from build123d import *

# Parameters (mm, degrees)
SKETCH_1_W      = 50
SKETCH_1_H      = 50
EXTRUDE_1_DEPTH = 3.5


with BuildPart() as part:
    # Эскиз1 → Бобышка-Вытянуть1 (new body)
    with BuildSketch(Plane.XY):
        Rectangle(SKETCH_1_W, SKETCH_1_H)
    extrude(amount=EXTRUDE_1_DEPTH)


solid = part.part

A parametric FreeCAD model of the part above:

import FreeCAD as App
import Part
import Sketcher

V = App.Vector

doc = App.newDocument("Part")
body = doc.addObject("PartDesign::Body", "Body")

# Sketch on XY plane
sketch1 = doc.addObject("Sketcher::SketchObject", "Sketch")
body.addObject(sketch1)
sketch1.AttachmentSupport = (doc.XY_Plane, [""])
sketch1.MapMode = "FlatFace"
sketch1.addGeometry([
    Part.LineSegment(V(-25, 25, 0), V(-25, -25, 0)),
    Part.LineSegment(V(-25, -25, 0), V(25, -25, 0)),
    Part.LineSegment(V(25, -25, 0), V(25, 25, 0)),
    Part.LineSegment(V(25, 25, 0), V(-25, 25, 0)),
], False)
sketch1.addConstraint([
    Sketcher.Constraint("Coincident", 0, 2, 1, 1),
    Sketcher.Constraint("Coincident", 1, 2, 2, 1),
    Sketcher.Constraint("Coincident", 2, 2, 3, 1),
    Sketcher.Constraint("Coincident", 3, 2, 0, 1),
    Sketcher.Constraint("Vertical", 0),
    Sketcher.Constraint("Horizontal", 1),
    Sketcher.Constraint("Vertical", 2),
    Sketcher.Constraint("Horizontal", 3),
    Sketcher.Constraint("Symmetric", 0, 2, 2, 2, -1, 1),
    Sketcher.Constraint("Equal", 3, 0),
    Sketcher.Constraint("DistanceX", 1, 1, 1, 2, 50.0),
])
pad1 = doc.addObject("PartDesign::Pad", "Pad")
body.addObject(pad1)
pad1.Profile = sketch1
pad1.Length = 3.5

doc.recompute()
